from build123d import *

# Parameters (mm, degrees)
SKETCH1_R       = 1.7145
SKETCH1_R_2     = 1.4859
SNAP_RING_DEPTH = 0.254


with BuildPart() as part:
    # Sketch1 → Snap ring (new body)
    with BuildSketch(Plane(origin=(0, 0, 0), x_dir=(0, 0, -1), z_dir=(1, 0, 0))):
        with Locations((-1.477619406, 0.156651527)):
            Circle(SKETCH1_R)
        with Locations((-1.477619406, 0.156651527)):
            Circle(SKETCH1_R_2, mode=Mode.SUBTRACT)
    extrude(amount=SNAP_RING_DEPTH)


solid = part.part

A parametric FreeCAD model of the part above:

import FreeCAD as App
import Part
import Sketcher
Q = App.Units.Quantity

doc = App.newDocument("Part")
body = doc.addObject("PartDesign::Body", "Body")

# Sketch on YZ plane
sketch1 = body.newObject("Sketcher::SketchObject", "Sketch")
sketch1.AttachmentSupport = (doc.getObject("YZ_Plane"), [""])
sketch1.MapMode = "FlatFace"
sketch1.addGeometry([
    Part.Circle(App.Vector(0.156652, 1.477619, 0), App.Vector(0, 0, 1), 1.7145),
    Part.Circle(App.Vector(0.156652, 1.477619, 0), App.Vector(0, 0, 1), 1.4859),
], False)
sketch1.addConstraint([
    Sketcher.Constraint("Coincident", 1, 3, 0, 3),
    Sketcher.Constraint("Diameter", 0, Q("0.135 in")),
    Sketcher.Constraint("Diameter", 1, Q("0.117 in")),
    Sketcher.Constraint("DistanceX", -1, 1, 0, 3, 0.156652),
    Sketcher.Constraint("DistanceY", -1, 1, 0, 3, 1.477619),
])
pad1 = body.newObject("PartDesign::Pad", "Pad")
pad1.Profile = sketch1
pad1.Length = Q("0.01 in")

doc.recompute()
